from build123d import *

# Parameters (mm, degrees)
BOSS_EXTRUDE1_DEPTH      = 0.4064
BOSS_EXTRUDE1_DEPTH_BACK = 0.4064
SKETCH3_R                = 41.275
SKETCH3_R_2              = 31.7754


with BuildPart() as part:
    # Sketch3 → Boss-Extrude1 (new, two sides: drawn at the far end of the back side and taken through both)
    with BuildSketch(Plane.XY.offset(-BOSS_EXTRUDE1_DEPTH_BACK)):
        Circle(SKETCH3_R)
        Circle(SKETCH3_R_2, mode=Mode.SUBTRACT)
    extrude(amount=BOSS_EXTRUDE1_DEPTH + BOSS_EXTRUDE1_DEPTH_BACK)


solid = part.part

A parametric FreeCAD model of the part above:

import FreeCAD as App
import Part
import Sketcher
Q = App.Units.Quantity

doc = App.newDocument("Part")
body = doc.addObject("PartDesign::Body", "Body")

# Sketch on XY plane
sketch1 = doc.addObject("Sketcher::SketchObject", "Sketch")
body.addObject(sketch1)
sketch1.AttachmentSupport = (doc.XY_Plane, [""])
sketch1.MapMode = "FlatFace"
sketch1.addGeometry(Part.Circle(App.Vector(0, 0, 0), App.Vector(0, 0, 1), 41), False)
sketch1.addGeometry(Part.Circle(App.Vector(0, 0, 0), App.Vector(0, 0, 1), 32), False)
sketch1.addConstraint(Sketcher.Constraint("Coincident", 0, 3, -1, 1))
sketch1.addConstraint(Sketcher.Constraint("Coincident", 1, 3, -1, 1))
sketch1.addConstraint(Sketcher.Constraint("Diameter", 0, Q("3.25 in")))
sketch1.addConstraint(Sketcher.Constraint("Diameter", 1, Q("2.502 in")))
pad1 = doc.addObject("PartDesign::Pad", "Pad")
body.addObject(pad1)
pad1.Profile = sketch1
pad1.Type = "TwoLengths"
pad1.Length = Q("0.016 in")
pad1.Length2 = Q("0.016 in")

doc.recompute()
